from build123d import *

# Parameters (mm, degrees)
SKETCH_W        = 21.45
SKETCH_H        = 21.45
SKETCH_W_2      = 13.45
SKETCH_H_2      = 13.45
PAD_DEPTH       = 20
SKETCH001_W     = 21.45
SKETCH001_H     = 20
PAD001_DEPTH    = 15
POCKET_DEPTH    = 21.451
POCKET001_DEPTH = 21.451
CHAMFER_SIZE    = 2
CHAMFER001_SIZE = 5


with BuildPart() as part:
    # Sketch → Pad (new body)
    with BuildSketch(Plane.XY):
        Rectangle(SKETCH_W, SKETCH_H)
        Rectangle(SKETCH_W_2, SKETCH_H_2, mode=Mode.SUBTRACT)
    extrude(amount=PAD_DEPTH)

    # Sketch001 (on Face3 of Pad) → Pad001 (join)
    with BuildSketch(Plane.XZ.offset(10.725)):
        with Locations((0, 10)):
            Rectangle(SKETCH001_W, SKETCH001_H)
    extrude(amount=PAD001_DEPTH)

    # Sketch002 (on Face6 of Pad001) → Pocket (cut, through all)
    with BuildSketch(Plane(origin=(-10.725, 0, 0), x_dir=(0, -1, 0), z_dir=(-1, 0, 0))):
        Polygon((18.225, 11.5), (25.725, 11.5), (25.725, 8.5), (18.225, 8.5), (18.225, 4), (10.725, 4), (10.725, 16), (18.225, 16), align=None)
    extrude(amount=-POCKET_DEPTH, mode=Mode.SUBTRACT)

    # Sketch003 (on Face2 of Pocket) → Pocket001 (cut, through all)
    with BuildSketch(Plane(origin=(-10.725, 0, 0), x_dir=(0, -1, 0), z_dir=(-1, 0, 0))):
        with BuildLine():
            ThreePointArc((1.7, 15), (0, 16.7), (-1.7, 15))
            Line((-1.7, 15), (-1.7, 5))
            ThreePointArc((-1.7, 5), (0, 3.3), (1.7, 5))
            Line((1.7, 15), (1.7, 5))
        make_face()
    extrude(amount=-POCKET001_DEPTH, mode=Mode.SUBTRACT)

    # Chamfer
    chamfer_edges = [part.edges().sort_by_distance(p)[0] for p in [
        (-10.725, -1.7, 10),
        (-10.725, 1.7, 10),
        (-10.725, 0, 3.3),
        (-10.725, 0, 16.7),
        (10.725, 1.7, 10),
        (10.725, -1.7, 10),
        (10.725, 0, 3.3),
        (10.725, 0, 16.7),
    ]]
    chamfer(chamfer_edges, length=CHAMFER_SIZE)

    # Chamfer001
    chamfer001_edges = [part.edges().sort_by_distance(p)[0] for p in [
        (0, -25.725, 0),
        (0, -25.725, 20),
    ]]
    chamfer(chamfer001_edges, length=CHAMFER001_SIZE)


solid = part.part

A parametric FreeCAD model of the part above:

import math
import FreeCAD as App
import Part
import Sketcher


def edges_at(feature, points):
    """Names of the edges that pass closest to the given points."""
    edges = feature.Shape.Edges
    near = lambda p: min(range(len(edges)), key=lambda i: edges[i].distToShape(Part.Vertex(*p))[0])
    return sorted({f"Edge{near(p) + 1}" for p in points})


def add_polygon(sketch, points):
    """Adds a closed chain of lines whose ends are joined by coincident constraints."""
    first, n = sketch.GeometryCount, len(points)
    for a, b in zip(points, points[1:] + points[:1]):
        sketch.addGeometry(Part.LineSegment(App.Vector(*a, 0), App.Vector(*b, 0)), False)
    for i in range(n):
        sketch.addConstraint(Sketcher.Constraint("Coincident", first + i, 2, first + (i + 1) % n, 1))

doc = App.newDocument("Part")
body = doc.addObject("PartDesign::Body", "Body")

# Sketch on XY plane
sketch1 = doc.addObject("Sketcher::SketchObject", "Sketch")
body.addObject(sketch1)
sketch1.AttachmentSupport = (doc.XY_Plane, [""])
sketch1.MapMode = "FlatFace"
add_polygon(sketch1, [(-10.725, 10.725), (-10.725, -10.725), (10.725, -10.725), (10.725, 10.725)])  # lines 0-3
add_polygon(sketch1, [(6.725, -6.725), (-6.725, -6.725), (-6.725, 6.725), (6.725, 6.725)])  # lines 4-7
sketch1.addConstraint([
    Sketcher.Constraint("Vertical", 0),
    Sketcher.Constraint("Horizontal", 1),
    Sketcher.Constraint("Vertical", 2),
    Sketcher.Constraint("Horizontal", 3),
    Sketcher.Constraint("Horizontal", 4),
    Sketcher.Constraint("Vertical", 5),
    Sketcher.Constraint("Horizontal", 6),
    Sketcher.Constraint("Vertical", 7),
    Sketcher.Constraint("Symmetric", 0, 2, 2, 2, -1, 1),
    Sketcher.Constraint("Symmetric", 4, 2, 6, 2, -1, 1),
    Sketcher.Constraint("Equal", 3, 0),
    Sketcher.Constraint("Equal", 6, 5),
    Sketcher.Constraint("DistanceX", 0, 2, 4, 2, 4.0),
    Sketcher.Constraint("DistanceX", 1, 1, 1, 2, 21.45),
])
pad1 = doc.addObject("PartDesign::Pad", "Pad")
body.addObject(pad1)
pad1.Profile = sketch1
pad1.Length = 20

# Sketch on XZ plane
sketch2 = doc.addObject("Sketcher::SketchObject", "Sketch001")
body.addObject(sketch2)
sketch2.AttachmentSupport = (doc.XZ_Plane, [""])
sketch2.MapMode = "FlatFace"
sketch2.AttachmentOffset = App.Placement(App.Vector(0, 0, 10.725), App.Rotation())
add_polygon(sketch2, [(-10.725, 20), (-10.725, 0), (10.725, 0), (10.725, 20)])  # lines 0-3
sketch2.addConstraint([
    Sketcher.Constraint("Vertical", 0),
    Sketcher.Constraint("Horizontal", 1),
    Sketcher.Constraint("Vertical", 2),
    Sketcher.Constraint("Horizontal", 3),
    Sketcher.Constraint("Symmetric", 0, 2, 1, 2, -1, 1),
    Sketcher.Constraint("DistanceY", 0, 2, 0, 1, 20.0),
    Sketcher.Constraint("DistanceX", 1, 1, 1, 2, 21.45),
])
pad2 = doc.addObject("PartDesign::Pad", "Pad001")
body.addObject(pad2)
pad2.Profile = sketch2
pad2.Length = 15

# Sketch on YZ plane
sketch3 = doc.addObject("Sketcher::SketchObject", "Sketch002")
body.addObject(sketch3)
sketch3.AttachmentSupport = (doc.YZ_Plane, [""])
sketch3.MapMode = "FlatFace"
sketch3.AttachmentOffset = App.Placement(App.Vector(0, 0, -10.725), App.Rotation())
add_polygon(sketch3, [(-25.725, 11.5), (-18.225, 11.5), (-18.225, 16), (-10.725, 16), (-10.725, 4), (-18.225, 4), (-18.225, 8.5), (-25.725, 8.5)])  # lines 0-7
sketch3.addConstraint([
    Sketcher.Constraint("Horizontal", 0),
    Sketcher.Constraint("Vertical", 1),
    Sketcher.Constraint("Horizontal", 2),
    Sketcher.Constraint("Vertical", 3),
    Sketcher.Constraint("Horizontal", 4),
    Sketcher.Constraint("Vertical", 5),
    Sketcher.Constraint("Horizontal", 6),
    Sketcher.Constraint("Vertical", 7),
    Sketcher.Constraint("Vertical", 1, 2, 4, 2),
    Sketcher.Constraint("Equal", 0, 2),
    Sketcher.Constraint("Equal", 1, 5),
    Sketcher.Constraint("DistanceY", 3, 2, 3, 1, 12.0),
    Sketcher.Constraint("DistanceY", 7, 1, 7, 2, 3.0),
    Sketcher.Constraint("DistanceX", 0, 1, 0, 2, 7.5),
    Sketcher.Constraint("DistanceY", -1, 1, 1, 2, 16.0),
    Sketcher.Constraint("DistanceX", 0, 2, -1, 1, 18.225),
])
pocket1 = doc.addObject("PartDesign::Pocket", "Pocket")
body.addObject(pocket1)
pocket1.Profile = sketch3
pocket1.Type = "ThroughAll"
pocket1.Reversed = True

# Sketch on YZ plane
sketch4 = doc.addObject("Sketcher::SketchObject", "Sketch003")
body.addObject(sketch4)
sketch4.AttachmentSupport = (doc.YZ_Plane, [""])
sketch4.MapMode = "FlatFace"
sketch4.AttachmentOffset = App.Placement(App.Vector(0, 0, -10.725), App.Rotation())
sketch4.addGeometry([
    Part.ArcOfCircle(Part.Circle(App.Vector(0, 15, 0), App.Vector(0, 0, 1), 1.7), math.radians(0), math.radians(180)),
    Part.LineSegment(App.Vector(1.7, 15, 0), App.Vector(1.7, 5, 0)),
    Part.ArcOfCircle(Part.Circle(App.Vector(0, 5, 0), App.Vector(0, 0, 1), 1.7), math.radians(180), math.radians(360)),
    Part.LineSegment(App.Vector(-1.7, 5, 0), App.Vector(-1.7, 15, 0)),
], False)
sketch4.addConstraint([
    Sketcher.Constraint("Tangent", 0, 1, 1, 1),
    Sketcher.Constraint("Tangent", 1, 2, 2, 2),
    Sketcher.Constraint("Tangent", 2, 1, 3, 1),
    Sketcher.Constraint("Tangent", 3, 2, 0, 2),
    Sketcher.Constraint("Vertical", 1),
    Sketcher.Constraint("Vertical", 3),
    Sketcher.Constraint("PointOnObject", 0, 3, -2),
    Sketcher.Constraint("Radius", 0, 1.7),
    Sketcher.Constraint("DistanceY", 1, 2, 1, 1, 10.0),
    Sketcher.Constraint("DistanceY", -1, 1, 0, 3, 15.0),
])
pocket2 = doc.addObject("PartDesign::Pocket", "Pocket001")
body.addObject(pocket2)
pocket2.Profile = sketch4
pocket2.Type = "ThroughAll"
pocket2.Reversed = True
doc.recompute()

chamfer = doc.addObject("PartDesign::Chamfer", "Chamfer")
body.addObject(chamfer)
chamfer.Base = (pocket2, edges_at(pocket2, [
    (-10.725, -1.7, 10),
    (-10.725, 1.7, 10),
    (-10.725, 0, 3.3),
    (-10.725, 0, 16.7),
    (10.725, 1.7, 10),
    (10.725, -1.7, 10),
    (10.725, 0, 3.3),
    (10.725, 0, 16.7),
]))
chamfer.Size = 2
doc.recompute()

chamfer2 = doc.addObject("PartDesign::Chamfer", "Chamfer001")
body.addObject(chamfer2)
chamfer2.Base = (chamfer, edges_at(chamfer, [(0, -25.725, 0), (0, -25.725, 20)]))
chamfer2.Size = 5

doc.recompute()
